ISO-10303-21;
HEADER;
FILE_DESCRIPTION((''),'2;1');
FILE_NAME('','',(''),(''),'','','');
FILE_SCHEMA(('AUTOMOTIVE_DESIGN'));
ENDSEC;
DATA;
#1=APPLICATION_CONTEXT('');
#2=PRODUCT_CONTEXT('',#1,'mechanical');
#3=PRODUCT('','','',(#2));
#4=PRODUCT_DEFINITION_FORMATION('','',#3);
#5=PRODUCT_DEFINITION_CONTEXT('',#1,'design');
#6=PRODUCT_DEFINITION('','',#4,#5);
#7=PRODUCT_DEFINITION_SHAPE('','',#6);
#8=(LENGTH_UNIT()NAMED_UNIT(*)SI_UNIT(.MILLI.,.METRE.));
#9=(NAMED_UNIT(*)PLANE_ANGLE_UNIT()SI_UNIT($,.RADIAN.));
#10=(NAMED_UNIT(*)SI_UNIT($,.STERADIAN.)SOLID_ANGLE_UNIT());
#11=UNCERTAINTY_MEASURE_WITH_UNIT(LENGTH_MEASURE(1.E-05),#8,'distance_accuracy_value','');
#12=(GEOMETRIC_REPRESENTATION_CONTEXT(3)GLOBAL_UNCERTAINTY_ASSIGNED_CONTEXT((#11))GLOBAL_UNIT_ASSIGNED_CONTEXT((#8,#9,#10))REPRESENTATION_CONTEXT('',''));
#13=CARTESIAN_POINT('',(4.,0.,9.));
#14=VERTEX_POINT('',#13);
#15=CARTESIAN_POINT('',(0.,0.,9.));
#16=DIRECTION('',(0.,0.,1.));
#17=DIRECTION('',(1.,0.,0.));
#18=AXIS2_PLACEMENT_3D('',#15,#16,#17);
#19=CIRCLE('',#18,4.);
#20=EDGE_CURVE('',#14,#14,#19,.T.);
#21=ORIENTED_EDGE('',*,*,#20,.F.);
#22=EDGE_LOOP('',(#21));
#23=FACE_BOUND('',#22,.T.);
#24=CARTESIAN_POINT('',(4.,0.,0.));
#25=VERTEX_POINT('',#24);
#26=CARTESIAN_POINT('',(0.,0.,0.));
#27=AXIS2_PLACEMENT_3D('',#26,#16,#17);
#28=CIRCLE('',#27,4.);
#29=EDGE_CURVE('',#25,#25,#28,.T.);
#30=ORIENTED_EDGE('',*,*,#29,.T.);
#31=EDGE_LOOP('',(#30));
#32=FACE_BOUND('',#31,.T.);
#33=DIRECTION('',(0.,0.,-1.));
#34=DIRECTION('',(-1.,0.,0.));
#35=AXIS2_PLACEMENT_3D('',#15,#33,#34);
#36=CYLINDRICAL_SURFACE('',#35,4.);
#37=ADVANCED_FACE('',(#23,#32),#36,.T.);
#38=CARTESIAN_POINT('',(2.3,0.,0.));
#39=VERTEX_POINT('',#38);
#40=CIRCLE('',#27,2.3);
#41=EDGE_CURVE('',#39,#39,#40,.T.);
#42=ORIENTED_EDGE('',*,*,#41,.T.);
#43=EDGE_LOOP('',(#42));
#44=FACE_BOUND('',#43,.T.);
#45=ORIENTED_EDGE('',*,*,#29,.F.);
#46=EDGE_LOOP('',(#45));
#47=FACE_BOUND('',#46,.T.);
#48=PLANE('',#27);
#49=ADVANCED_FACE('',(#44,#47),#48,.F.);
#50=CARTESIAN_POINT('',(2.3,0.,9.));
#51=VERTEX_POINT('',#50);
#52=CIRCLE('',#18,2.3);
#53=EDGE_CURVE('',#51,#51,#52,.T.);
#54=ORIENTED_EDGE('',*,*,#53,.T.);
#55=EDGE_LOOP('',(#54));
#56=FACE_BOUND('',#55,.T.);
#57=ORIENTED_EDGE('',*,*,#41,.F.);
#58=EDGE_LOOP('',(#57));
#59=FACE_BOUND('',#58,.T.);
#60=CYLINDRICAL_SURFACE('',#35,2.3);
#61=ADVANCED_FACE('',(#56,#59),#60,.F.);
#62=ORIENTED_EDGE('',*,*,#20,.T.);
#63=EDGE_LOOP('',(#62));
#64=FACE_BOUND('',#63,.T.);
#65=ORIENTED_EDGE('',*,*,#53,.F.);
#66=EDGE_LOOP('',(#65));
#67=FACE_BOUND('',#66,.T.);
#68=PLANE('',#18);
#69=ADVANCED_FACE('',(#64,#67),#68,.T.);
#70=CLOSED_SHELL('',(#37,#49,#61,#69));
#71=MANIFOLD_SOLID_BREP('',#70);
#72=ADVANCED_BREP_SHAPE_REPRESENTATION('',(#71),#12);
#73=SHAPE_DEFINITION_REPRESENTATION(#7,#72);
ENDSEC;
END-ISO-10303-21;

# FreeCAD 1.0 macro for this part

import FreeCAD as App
import Part
import Sketcher
from FreeCAD import Vector
Q = App.Units.Quantity

doc = App.newDocument("Part")
params = doc.addObject("Spreadsheet::Sheet", "Params")
for row, (alias, value) in enumerate([
    ("sketch1_diameter", "8 mm"),
    ("sketch1_diameter2", "4.6 mm"),
    ("pad1_length", "9 mm"),
], start=1):
    params.set(f"A{row}", alias)
    params.set(f"B{row}", "=" + value)
    params.setAlias(f"B{row}", alias)

body = doc.addObject("PartDesign::Body", "Body")

# Sketch on XY plane
sketch1 = body.newObject("Sketcher::SketchObject", "Sketch")
sketch1.AttachmentSupport = (doc.getObject("XY_Plane"), [""])
sketch1.MapMode = "FlatFace"
sketch1.addGeometry(Part.Circle(Vector(0, 0, 0), Vector(0, 0, 1), 4), False)
sketch1.addGeometry(Part.Circle(Vector(0, 0, 0), Vector(0, 0, 1), 2.3), False)
sketch1.addConstraint(Sketcher.Constraint("Coincident", 0, 3, -1, 1))
sketch1.addConstraint(Sketcher.Constraint("Coincident", 1, 3, -1, 1))
sketch1.addConstraint(Sketcher.Constraint("Diameter", 0, Q("8 mm")))
sketch1.addConstraint(Sketcher.Constraint("Diameter", 1, Q("4.6 mm")))
sketch1.setExpression("Constraints[2]", "Params.sketch1_diameter")
sketch1.setExpression("Constraints[3]", "Params.sketch1_diameter2")
pad1 = body.newObject("PartDesign::Pad", "Pad")
pad1.Profile = sketch1
pad1.setExpression("Length", "Params.pad1_length")

doc.recompute()
